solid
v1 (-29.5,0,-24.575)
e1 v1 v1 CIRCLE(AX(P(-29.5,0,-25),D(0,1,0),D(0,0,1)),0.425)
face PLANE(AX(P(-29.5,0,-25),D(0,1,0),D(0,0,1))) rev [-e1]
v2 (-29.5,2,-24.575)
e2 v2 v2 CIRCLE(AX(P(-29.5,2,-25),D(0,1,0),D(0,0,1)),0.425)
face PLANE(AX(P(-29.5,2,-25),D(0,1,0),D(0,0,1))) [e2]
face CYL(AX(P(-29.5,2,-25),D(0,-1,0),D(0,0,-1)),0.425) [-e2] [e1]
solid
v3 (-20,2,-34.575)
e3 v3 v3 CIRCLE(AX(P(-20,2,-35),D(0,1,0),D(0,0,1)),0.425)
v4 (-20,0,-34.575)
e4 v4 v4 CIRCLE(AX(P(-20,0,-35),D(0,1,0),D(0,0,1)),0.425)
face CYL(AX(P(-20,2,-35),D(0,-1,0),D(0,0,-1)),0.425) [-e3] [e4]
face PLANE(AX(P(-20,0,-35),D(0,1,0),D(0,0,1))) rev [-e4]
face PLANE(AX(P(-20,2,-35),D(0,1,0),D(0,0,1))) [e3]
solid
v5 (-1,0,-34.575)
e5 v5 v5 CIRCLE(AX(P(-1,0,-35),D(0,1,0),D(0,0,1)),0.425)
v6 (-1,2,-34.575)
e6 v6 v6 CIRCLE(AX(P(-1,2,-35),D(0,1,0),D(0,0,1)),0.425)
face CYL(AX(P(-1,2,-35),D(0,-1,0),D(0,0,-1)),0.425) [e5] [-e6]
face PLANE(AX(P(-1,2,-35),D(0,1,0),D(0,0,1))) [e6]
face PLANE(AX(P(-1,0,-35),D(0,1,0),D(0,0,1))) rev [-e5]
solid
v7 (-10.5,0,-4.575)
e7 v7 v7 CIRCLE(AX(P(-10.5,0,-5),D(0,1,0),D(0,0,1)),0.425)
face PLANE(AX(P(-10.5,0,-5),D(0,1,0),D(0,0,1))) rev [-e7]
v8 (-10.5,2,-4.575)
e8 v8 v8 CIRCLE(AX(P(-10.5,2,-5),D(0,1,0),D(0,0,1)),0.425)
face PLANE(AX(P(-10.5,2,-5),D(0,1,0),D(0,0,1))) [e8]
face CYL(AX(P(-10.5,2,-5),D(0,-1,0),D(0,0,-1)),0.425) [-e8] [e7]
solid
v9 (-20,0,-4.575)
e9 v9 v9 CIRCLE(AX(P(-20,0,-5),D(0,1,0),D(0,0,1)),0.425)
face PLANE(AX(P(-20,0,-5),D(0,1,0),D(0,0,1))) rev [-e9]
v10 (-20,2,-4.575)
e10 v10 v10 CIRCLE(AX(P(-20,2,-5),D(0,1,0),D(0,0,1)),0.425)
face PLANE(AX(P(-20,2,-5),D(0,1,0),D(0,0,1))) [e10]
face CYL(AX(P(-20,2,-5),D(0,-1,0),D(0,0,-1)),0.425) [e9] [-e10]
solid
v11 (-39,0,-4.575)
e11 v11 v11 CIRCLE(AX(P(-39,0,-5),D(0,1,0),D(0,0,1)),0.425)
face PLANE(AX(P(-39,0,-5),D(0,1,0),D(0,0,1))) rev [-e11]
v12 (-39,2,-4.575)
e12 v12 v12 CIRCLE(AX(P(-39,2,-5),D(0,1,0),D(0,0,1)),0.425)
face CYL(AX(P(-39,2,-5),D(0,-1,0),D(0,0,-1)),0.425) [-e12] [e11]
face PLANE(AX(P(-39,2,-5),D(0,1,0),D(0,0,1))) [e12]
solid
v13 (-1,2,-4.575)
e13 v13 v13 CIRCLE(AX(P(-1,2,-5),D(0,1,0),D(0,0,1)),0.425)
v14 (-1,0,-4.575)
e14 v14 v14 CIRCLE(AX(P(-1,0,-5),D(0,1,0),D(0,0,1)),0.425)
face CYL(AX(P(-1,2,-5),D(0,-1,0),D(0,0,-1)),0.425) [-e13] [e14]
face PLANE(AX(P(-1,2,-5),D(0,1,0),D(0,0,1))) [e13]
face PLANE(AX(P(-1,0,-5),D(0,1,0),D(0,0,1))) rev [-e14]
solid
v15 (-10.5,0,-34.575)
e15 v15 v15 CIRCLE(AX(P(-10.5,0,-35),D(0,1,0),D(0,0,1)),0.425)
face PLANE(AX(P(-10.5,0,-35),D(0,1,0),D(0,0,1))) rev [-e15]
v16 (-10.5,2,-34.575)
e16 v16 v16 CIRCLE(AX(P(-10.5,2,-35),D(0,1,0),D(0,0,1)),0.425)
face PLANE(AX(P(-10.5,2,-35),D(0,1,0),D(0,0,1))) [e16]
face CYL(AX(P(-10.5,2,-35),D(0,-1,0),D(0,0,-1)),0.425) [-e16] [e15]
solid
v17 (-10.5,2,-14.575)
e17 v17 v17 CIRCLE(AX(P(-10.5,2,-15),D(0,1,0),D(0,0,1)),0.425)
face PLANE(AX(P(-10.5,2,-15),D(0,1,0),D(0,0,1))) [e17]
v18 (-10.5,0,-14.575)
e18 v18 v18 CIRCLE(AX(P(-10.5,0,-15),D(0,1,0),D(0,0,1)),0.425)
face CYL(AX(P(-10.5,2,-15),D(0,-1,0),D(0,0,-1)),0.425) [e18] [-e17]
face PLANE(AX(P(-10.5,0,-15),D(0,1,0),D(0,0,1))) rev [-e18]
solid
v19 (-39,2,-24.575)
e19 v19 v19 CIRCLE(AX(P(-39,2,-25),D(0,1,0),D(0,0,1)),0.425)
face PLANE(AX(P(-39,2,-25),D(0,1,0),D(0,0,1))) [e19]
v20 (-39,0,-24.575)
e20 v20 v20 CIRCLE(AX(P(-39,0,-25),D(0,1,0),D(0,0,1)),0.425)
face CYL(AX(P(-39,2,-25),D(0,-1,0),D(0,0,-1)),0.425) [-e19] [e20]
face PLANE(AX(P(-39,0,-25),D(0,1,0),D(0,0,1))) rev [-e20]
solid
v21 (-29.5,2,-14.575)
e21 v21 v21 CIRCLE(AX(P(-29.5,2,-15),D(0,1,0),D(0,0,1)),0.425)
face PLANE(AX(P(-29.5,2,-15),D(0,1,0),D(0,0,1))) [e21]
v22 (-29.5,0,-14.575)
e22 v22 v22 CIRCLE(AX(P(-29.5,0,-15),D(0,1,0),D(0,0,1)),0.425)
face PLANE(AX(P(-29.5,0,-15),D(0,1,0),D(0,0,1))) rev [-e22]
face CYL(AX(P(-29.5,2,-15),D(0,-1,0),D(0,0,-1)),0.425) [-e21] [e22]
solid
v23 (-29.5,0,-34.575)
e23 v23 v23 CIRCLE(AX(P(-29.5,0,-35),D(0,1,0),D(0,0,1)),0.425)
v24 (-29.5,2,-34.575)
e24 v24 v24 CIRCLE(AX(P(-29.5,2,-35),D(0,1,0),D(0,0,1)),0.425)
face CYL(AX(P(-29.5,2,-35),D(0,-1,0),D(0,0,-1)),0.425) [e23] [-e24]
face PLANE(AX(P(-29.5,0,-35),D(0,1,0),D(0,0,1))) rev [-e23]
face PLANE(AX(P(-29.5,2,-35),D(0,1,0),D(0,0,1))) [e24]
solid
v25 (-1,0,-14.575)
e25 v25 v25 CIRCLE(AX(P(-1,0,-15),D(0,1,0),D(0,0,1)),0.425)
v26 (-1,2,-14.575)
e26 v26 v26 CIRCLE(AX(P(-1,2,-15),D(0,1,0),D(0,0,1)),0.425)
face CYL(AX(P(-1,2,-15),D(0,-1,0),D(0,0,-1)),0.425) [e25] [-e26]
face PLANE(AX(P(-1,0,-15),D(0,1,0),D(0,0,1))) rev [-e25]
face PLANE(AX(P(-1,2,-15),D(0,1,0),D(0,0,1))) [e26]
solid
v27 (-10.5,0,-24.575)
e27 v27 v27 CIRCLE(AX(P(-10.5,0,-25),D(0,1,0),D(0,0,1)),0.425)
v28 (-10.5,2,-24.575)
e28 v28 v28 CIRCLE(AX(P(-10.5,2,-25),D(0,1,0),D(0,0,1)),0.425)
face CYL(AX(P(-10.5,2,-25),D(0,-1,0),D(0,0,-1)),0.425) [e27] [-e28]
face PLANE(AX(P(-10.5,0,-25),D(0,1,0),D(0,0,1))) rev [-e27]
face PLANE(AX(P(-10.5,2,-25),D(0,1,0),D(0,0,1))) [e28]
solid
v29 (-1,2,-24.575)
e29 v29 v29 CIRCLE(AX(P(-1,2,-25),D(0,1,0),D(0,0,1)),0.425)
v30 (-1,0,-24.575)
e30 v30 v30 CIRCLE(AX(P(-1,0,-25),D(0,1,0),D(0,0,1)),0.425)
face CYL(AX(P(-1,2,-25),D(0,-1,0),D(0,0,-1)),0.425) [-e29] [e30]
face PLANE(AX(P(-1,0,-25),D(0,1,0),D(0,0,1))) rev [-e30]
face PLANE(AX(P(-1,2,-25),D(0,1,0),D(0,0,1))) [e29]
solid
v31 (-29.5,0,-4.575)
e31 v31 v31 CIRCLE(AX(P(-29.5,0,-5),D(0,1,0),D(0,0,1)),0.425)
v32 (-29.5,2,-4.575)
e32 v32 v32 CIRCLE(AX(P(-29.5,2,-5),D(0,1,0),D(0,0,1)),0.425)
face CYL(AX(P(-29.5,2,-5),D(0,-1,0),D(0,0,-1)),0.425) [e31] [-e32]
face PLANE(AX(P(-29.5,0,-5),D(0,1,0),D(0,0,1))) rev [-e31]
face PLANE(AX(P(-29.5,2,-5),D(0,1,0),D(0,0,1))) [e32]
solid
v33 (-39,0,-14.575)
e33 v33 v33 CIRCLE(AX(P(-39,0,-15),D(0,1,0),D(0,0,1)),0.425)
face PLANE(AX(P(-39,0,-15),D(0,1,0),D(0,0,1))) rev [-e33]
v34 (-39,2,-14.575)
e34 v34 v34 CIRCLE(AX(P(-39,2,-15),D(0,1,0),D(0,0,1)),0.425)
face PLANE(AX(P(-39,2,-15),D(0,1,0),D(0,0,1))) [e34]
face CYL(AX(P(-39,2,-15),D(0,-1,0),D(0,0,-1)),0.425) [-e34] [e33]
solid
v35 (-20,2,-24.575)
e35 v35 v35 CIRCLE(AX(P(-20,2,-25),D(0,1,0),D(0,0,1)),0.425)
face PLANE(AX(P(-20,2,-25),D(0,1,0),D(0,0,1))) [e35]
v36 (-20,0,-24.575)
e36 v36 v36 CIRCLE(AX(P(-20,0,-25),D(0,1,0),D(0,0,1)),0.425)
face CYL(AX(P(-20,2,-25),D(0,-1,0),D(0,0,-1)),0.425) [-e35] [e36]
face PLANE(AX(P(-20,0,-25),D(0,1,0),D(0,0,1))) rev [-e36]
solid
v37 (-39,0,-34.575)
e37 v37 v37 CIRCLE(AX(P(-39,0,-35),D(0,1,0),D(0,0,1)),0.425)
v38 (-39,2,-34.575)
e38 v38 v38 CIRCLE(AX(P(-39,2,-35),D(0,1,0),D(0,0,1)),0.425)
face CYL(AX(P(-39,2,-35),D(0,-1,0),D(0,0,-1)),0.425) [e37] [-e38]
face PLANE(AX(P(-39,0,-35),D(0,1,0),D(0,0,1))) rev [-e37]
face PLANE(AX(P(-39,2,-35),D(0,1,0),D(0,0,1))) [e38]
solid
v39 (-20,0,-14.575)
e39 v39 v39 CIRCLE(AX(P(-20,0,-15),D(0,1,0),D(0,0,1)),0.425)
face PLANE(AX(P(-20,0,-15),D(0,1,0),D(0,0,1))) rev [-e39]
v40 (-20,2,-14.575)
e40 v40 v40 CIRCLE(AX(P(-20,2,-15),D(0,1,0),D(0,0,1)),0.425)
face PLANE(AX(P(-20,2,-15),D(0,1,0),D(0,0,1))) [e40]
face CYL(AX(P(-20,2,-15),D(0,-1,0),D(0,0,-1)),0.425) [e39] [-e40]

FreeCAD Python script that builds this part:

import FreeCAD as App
import Part
import Sketcher

doc = App.newDocument("Part")
body = doc.addObject("PartDesign::Body", "Body")

sketch1 = doc.addObject("Sketcher::SketchObject", "Sketch")
body.addObject(sketch1)
sketch1.AttachmentSupport = (doc.XZ_Plane, [""])
sketch1.MapMode = "FlatFace"
sketch1.addGeometry(Part.Circle(App.Vector(-39, -5, 0), App.Vector(0, 0, 1), 0.42), False)
sketch1.addConstraint([
    Sketcher.Constraint("Diameter", 0, 0.85),
    Sketcher.Constraint("DistanceX", 0, 3, -1, 1, 39.0),
    Sketcher.Constraint("DistanceY", 0, 3, -1, 1, 5.0),
])
pad1 = doc.addObject("PartDesign::Pad", "Pad")
body.addObject(pad1)
pad1.Profile = sketch1
pad1.Length = 2
pad1.Reversed = True
body2 = doc.addObject("PartDesign::Body", "Body001")

sketch2 = doc.addObject("Sketcher::SketchObject", "Sketch001")
body2.addObject(sketch2)
sketch2.AttachmentSupport = (doc.getObject("XZ_Plane001"), [""])
sketch2.MapMode = "FlatFace"
sketch2.addGeometry(Part.Circle(App.Vector(-29.5, -5, 0), App.Vector(0, 0, 1), 0.42), False)
sketch2.addConstraint([
    Sketcher.Constraint("Diameter", 0, 0.85),
    Sketcher.Constraint("DistanceY", 0, 3, -1, 1, 5.0),
    Sketcher.Constraint("DistanceX", 0, 3, -1, 1, 29.5),
])
pad2 = doc.addObject("PartDesign::Pad", "Pad001")
body2.addObject(pad2)
pad2.Profile = sketch2
pad2.Length = 2
pad2.Reversed = True
body3 = doc.addObject("PartDesign::Body", "Body002")

sketch3 = doc.addObject("Sketcher::SketchObject", "Sketch002")
body3.addObject(sketch3)
sketch3.AttachmentSupport = (doc.getObject("XZ_Plane002"), [""])
sketch3.MapMode = "FlatFace"
sketch3.addGeometry(Part.Circle(App.Vector(-20, -5, 0), App.Vector(0, 0, 1), 0.42), False)
sketch3.addConstraint([
    Sketcher.Constraint("Diameter", 0, 0.85),
    Sketcher.Constraint("DistanceX", 0, 3, -1, 1, 20.0),
    Sketcher.Constraint("DistanceY", 0, 3, -1, 1, 5.0),
])
pad3 = doc.addObject("PartDesign::Pad", "Pad002")
body3.addObject(pad3)
pad3.Profile = sketch3
pad3.Length = 2
pad3.Reversed = True
body4 = doc.addObject("PartDesign::Body", "Body003")

sketch4 = doc.addObject("Sketcher::SketchObject", "Sketch003")
body4.addObject(sketch4)
sketch4.AttachmentSupport = (doc.getObject("XZ_Plane003"), [""])
sketch4.MapMode = "FlatFace"
sketch4.addGeometry(Part.Circle(App.Vector(-10.5, -5, 0), App.Vector(0, 0, 1), 0.42), False)
sketch4.addConstraint([
    Sketcher.Constraint("Diameter", 0, 0.85),
    Sketcher.Constraint("DistanceY", 0, 3, -1, 1, 5.0),
    Sketcher.Constraint("DistanceX", 0, 3, -1, 1, 10.5),
])
pad4 = doc.addObject("PartDesign::Pad", "Pad003")
body4.addObject(pad4)
pad4.Profile = sketch4
pad4.Length = 2
pad4.Reversed = True
body5 = doc.addObject("PartDesign::Body", "Body004")

sketch5 = doc.addObject("Sketcher::SketchObject", "Sketch004")
body5.addObject(sketch5)
sketch5.AttachmentSupport = (doc.getObject("XZ_Plane004"), [""])
sketch5.MapMode = "FlatFace"
sketch5.addGeometry(Part.Circle(App.Vector(-1, -5, 0), App.Vector(0, 0, 1), 0.42), False)
sketch5.addConstraint([
    Sketcher.Constraint("Diameter", 0, 0.85),
    Sketcher.Constraint("DistanceX", 0, 3, -1, 1, 1.0),
    Sketcher.Constraint("DistanceY", 0, 3, -1, 1, 5.0),
])
pad5 = doc.addObject("PartDesign::Pad", "Pad004")
body5.addObject(pad5)
pad5.Profile = sketch5
pad5.Length = 2
pad5.Reversed = True
body6 = doc.addObject("PartDesign::Body", "Body005")

sketch6 = doc.addObject("Sketcher::SketchObject", "Sketch005")
body6.addObject(sketch6)
sketch6.AttachmentSupport = (doc.getObject("XZ_Plane005"), [""])
sketch6.MapMode = "FlatFace"
sketch6.addGeometry(Part.Circle(App.Vector(-29.5, -15, 0), App.Vector(0, 0, 1), 0.42), False)
sketch6.addConstraint([
    Sketcher.Constraint("Diameter", 0, 0.85),
    Sketcher.Constraint("DistanceY", 0, 3, -1, 1, 15.0),
    Sketcher.Constraint("DistanceX", 0, 3, -1, 1, 29.5),
])
pad6 = doc.addObject("PartDesign::Pad", "Pad005")
body6.addObject(pad6)
pad6.Profile = sketch6
pad6.Length = 2
pad6.Reversed = True
body7 = doc.addObject("PartDesign::Body", "Body006")

sketch7 = doc.addObject("Sketcher::SketchObject", "Sketch006")
body7.addObject(sketch7)
sketch7.AttachmentSupport = (doc.getObject("XZ_Plane006"), [""])
sketch7.MapMode = "FlatFace"
sketch7.addGeometry(Part.Circle(App.Vector(-20, -15, 0), App.Vector(0, 0, 1), 0.42), False)
sketch7.addConstraint([
    Sketcher.Constraint("Diameter", 0, 0.85),
    Sketcher.Constraint("DistanceX", 0, 3, -1, 1, 20.0),
    Sketcher.Constraint("DistanceY", 0, 3, -1, 1, 15.0),
])
pad7 = doc.addObject("PartDesign::Pad", "Pad006")
body7.addObject(pad7)
pad7.Profile = sketch7
pad7.Length = 2
pad7.Reversed = True
body8 = doc.addObject("PartDesign::Body", "Body007")

sketch8 = doc.addObject("Sketcher::SketchObject", "Sketch007")
body8.addObject(sketch8)
sketch8.AttachmentSupport = (doc.getObject("XZ_Plane007"), [""])
sketch8.MapMode = "FlatFace"
sketch8.addGeometry(Part.Circle(App.Vector(-10.5, -15, 0), App.Vector(0, 0, 1), 0.42), False)
sketch8.addConstraint([
    Sketcher.Constraint("Diameter", 0, 0.85),
    Sketcher.Constraint("DistanceY", 0, 3, -1, 1, 15.0),
    Sketcher.Constraint("DistanceX", 0, 3, -1, 1, 10.5),
])
pad8 = doc.addObject("PartDesign::Pad", "Pad007")
body8.addObject(pad8)
pad8.Profile = sketch8
pad8.Length = 2
pad8.Reversed = True
body9 = doc.addObject("PartDesign::Body", "Body008")

sketch9 = doc.addObject("Sketcher::SketchObject", "Sketch008")
body9.addObject(sketch9)
sketch9.AttachmentSupport = (doc.getObject("XZ_Plane008"), [""])
sketch9.MapMode = "FlatFace"
sketch9.addGeometry(Part.Circle(App.Vector(-1, -15, 0), App.Vector(0, 0, 1), 0.42), False)
sketch9.addConstraint([
    Sketcher.Constraint("Diameter", 0, 0.85),
    Sketcher.Constraint("DistanceX", 0, 3, -1, 1, 1.0),
    Sketcher.Constraint("DistanceY", 0, 3, -1, 1, 15.0),
])
pad9 = doc.addObject("PartDesign::Pad", "Pad008")
body9.addObject(pad9)
pad9.Profile = sketch9
pad9.Length = 2
pad9.Reversed = True
body10 = doc.addObject("PartDesign::Body", "Body009")

sketch10 = doc.addObject("Sketcher::SketchObject", "Sketch009")
body10.addObject(sketch10)
sketch10.AttachmentSupport = (doc.getObject("XZ_Plane009"), [""])
sketch10.MapMode = "FlatFace"
sketch10.addGeometry(Part.Circle(App.Vector(-29.5, -25, 0), App.Vector(0, 0, 1), 0.42), False)
sketch10.addConstraint([
    Sketcher.Constraint("Diameter", 0, 0.85),
    Sketcher.Constraint("DistanceY", 0, 3, -1, 1, 25.0),
    Sketcher.Constraint("DistanceX", 0, 3, -1, 1, 29.5),
])
pad10 = doc.addObject("PartDesign::Pad", "Pad009")
body10.addObject(pad10)
pad10.Profile = sketch10
pad10.Length = 2
pad10.Reversed = True
body11 = doc.addObject("PartDesign::Body", "Body010")

sketch11 = doc.addObject("Sketcher::SketchObject", "Sketch010")
body11.addObject(sketch11)
sketch11.AttachmentSupport = (doc.getObject("XZ_Plane010"), [""])
sketch11.MapMode = "FlatFace"
sketch11.addGeometry(Part.Circle(App.Vector(-20, -25, 0), App.Vector(0, 0, 1), 0.42), False)
sketch11.addConstraint([
    Sketcher.Constraint("Diameter", 0, 0.85),
    Sketcher.Constraint("DistanceX", 0, 3, -1, 1, 20.0),
    Sketcher.Constraint("DistanceY", 0, 3, -1, 1, 25.0),
])
pad11 = doc.addObject("PartDesign::Pad", "Pad010")
body11.addObject(pad11)
pad11.Profile = sketch11
pad11.Length = 2
pad11.Reversed = True
body12 = doc.addObject("PartDesign::Body", "Body011")

sketch12 = doc.addObject("Sketcher::SketchObject", "Sketch011")
body12.addObject(sketch12)
sketch12.AttachmentSupport = (doc.getObject("XZ_Plane011"), [""])
sketch12.MapMode = "FlatFace"
sketch12.addGeometry(Part.Circle(App.Vector(-10.5, -25, 0), App.Vector(0, 0, 1), 0.42), False)
sketch12.addConstraint([
    Sketcher.Constraint("Diameter", 0, 0.85),
    Sketcher.Constraint("DistanceY", 0, 3, -1, 1, 25.0),
    Sketcher.Constraint("DistanceX", 0, 3, -1, 1, 10.5),
])
pad12 = doc.addObject("PartDesign::Pad", "Pad011")
body12.addObject(pad12)
pad12.Profile = sketch12
pad12.Length = 2
pad12.Reversed = True
body13 = doc.addObject("PartDesign::Body", "Body012")

sketch13 = doc.addObject("Sketcher::SketchObject", "Sketch012")
body13.addObject(sketch13)
sketch13.AttachmentSupport = (doc.getObject("XZ_Plane012"), [""])
sketch13.MapMode = "FlatFace"
sketch13.addGeometry(Part.Circle(App.Vector(-1, -25, 0), App.Vector(0, 0, 1), 0.42), False)
sketch13.addConstraint([
    Sketcher.Constraint("Diameter", 0, 0.85),
    Sketcher.Constraint("DistanceX", 0, 3, -1, 1, 1.0),
    Sketcher.Constraint("DistanceY", 0, 3, -1, 1, 25.0),
])
pad13 = doc.addObject("PartDesign::Pad", "Pad012")
body13.addObject(pad13)
pad13.Profile = sketch13
pad13.Length = 2
pad13.Reversed = True
body14 = doc.addObject("PartDesign::Body", "Body013")

sketch14 = doc.addObject("Sketcher::SketchObject", "Sketch013")
body14.addObject(sketch14)
sketch14.AttachmentSupport = (doc.getObject("XZ_Plane013"), [""])
sketch14.MapMode = "FlatFace"
sketch14.addGeometry(Part.Circle(App.Vector(-29.5, -35, 0), App.Vector(0, 0, 1), 0.42), False)
sketch14.addConstraint([
    Sketcher.Constraint("Diameter", 0, 0.85),
    Sketcher.Constraint("DistanceY", 0, 3, -1, 1, 35.0),
    Sketcher.Constraint("DistanceX", 0, 3, -1, 1, 29.5),
])
pad14 = doc.addObject("PartDesign::Pad", "Pad013")
body14.addObject(pad14)
pad14.Profile = sketch14
pad14.Length = 2
pad14.Reversed = True
body15 = doc.addObject("PartDesign::Body", "Body014")

sketch15 = doc.addObject("Sketcher::SketchObject", "Sketch014")
body15.addObject(sketch15)
sketch15.AttachmentSupport = (doc.getObject("XZ_Plane014"), [""])
sketch15.MapMode = "FlatFace"
sketch15.addGeometry(Part.Circle(App.Vector(-20, -35, 0), App.Vector(0, 0, 1), 0.42), False)
sketch15.addConstraint([
    Sketcher.Constraint("Diameter", 0, 0.85),
    Sketcher.Constraint("DistanceX", 0, 3, -1, 1, 20.0),
    Sketcher.Constraint("DistanceY", 0, 3, -1, 1, 35.0),
])
pad15 = doc.addObject("PartDesign::Pad", "Pad014")
body15.addObject(pad15)
pad15.Profile = sketch15
pad15.Length = 2
pad15.Reversed = True
body16 = doc.addObject("PartDesign::Body", "Body015")

sketch16 = doc.addObject("Sketcher::SketchObject", "Sketch015")
body16.addObject(sketch16)
sketch16.AttachmentSupport = (doc.getObject("XZ_Plane015"), [""])
sketch16.MapMode = "FlatFace"
sketch16.addGeometry(Part.Circle(App.Vector(-10.5, -35, 0), App.Vector(0, 0, 1), 0.42), False)
sketch16.addConstraint([
    Sketcher.Constraint("Diameter", 0, 0.85),
    Sketcher.Constraint("DistanceY", 0, 3, -1, 1, 35.0),
    Sketcher.Constraint("DistanceX", 0, 3, -1, 1, 10.5),
])
pad16 = doc.addObject("PartDesign::Pad", "Pad015")
body16.addObject(pad16)
pad16.Profile = sketch16
pad16.Length = 2
pad16.Reversed = True
body17 = doc.addObject("PartDesign::Body", "Body016")

sketch17 = doc.addObject("Sketcher::SketchObject", "Sketch016")
body17.addObject(sketch17)
sketch17.AttachmentSupport = (doc.getObject("XZ_Plane016"), [""])
sketch17.MapMode = "FlatFace"
sketch17.addGeometry(Part.Circle(App.Vector(-1, -35, 0), App.Vector(0, 0, 1), 0.42), False)
sketch17.addConstraint([
    Sketcher.Constraint("Diameter", 0, 0.85),
    Sketcher.Constraint("DistanceX", 0, 3, -1, 1, 1.0),
    Sketcher.Constraint("DistanceY", 0, 3, -1, 1, 35.0),
])
pad17 = doc.addObject("PartDesign::Pad", "Pad016")
body17.addObject(pad17)
pad17.Profile = sketch17
pad17.Length = 2
pad17.Reversed = True
body18 = doc.addObject("PartDesign::Body", "Body017")

sketch18 = doc.addObject("Sketcher::SketchObject", "Sketch017")
body18.addObject(sketch18)
sketch18.AttachmentSupport = (doc.getObject("XZ_Plane017"), [""])
sketch18.MapMode = "FlatFace"
sketch18.addGeometry(Part.Circle(App.Vector(-39, -15, 0), App.Vector(0, 0, 1), 0.42), False)
sketch18.addConstraint([
    Sketcher.Constraint("Diameter", 0, 0.85),
    Sketcher.Constraint("DistanceX", 0, 3, -1, 1, 39.0),
    Sketcher.Constraint("DistanceY", 0, 3, -1, 1, 15.0),
])
pad18 = doc.addObject("PartDesign::Pad", "Pad017")
body18.addObject(pad18)
pad18.Profile = sketch18
pad18.Length = 2
pad18.Reversed = True
body19 = doc.addObject("PartDesign::Body", "Body018")

sketch19 = doc.addObject("Sketcher::SketchObject", "Sketch018")
body19.addObject(sketch19)
sketch19.AttachmentSupport = (doc.getObject("XZ_Plane018"), [""])
sketch19.MapMode = "FlatFace"
sketch19.addGeometry(Part.Circle(App.Vector(-39, -25, 0), App.Vector(0, 0, 1), 0.42), False)
sketch19.addConstraint([
    Sketcher.Constraint("Diameter", 0, 0.85),
    Sketcher.Constraint("DistanceX", 0, 3, -1, 1, 39.0),
    Sketcher.Constraint("DistanceY", 0, 3, -1, 1, 25.0),
])
pad19 = doc.addObject("PartDesign::Pad", "Pad018")
body19.addObject(pad19)
pad19.Profile = sketch19
pad19.Length = 2
pad19.Reversed = True
body20 = doc.addObject("PartDesign::Body", "Body019")

sketch20 = doc.addObject("Sketcher::SketchObject", "Sketch019")
body20.addObject(sketch20)
sketch20.AttachmentSupport = (doc.getObject("XZ_Plane019"), [""])
sketch20.MapMode = "FlatFace"
sketch20.addGeometry(Part.Circle(App.Vector(-39, -35, 0), App.Vector(0, 0, 1), 0.42), False)
sketch20.addConstraint([
    Sketcher.Constraint("Diameter", 0, 0.85),
    Sketcher.Constraint("DistanceX", 0, 3, -1, 1, 39.0),
    Sketcher.Constraint("DistanceY", 0, 3, -1, 1, 35.0),
])
pad20 = doc.addObject("PartDesign::Pad", "Pad019")
body20.addObject(pad20)
pad20.Profile = sketch20
pad20.Length = 2
pad20.Reversed = True

doc.recompute()
